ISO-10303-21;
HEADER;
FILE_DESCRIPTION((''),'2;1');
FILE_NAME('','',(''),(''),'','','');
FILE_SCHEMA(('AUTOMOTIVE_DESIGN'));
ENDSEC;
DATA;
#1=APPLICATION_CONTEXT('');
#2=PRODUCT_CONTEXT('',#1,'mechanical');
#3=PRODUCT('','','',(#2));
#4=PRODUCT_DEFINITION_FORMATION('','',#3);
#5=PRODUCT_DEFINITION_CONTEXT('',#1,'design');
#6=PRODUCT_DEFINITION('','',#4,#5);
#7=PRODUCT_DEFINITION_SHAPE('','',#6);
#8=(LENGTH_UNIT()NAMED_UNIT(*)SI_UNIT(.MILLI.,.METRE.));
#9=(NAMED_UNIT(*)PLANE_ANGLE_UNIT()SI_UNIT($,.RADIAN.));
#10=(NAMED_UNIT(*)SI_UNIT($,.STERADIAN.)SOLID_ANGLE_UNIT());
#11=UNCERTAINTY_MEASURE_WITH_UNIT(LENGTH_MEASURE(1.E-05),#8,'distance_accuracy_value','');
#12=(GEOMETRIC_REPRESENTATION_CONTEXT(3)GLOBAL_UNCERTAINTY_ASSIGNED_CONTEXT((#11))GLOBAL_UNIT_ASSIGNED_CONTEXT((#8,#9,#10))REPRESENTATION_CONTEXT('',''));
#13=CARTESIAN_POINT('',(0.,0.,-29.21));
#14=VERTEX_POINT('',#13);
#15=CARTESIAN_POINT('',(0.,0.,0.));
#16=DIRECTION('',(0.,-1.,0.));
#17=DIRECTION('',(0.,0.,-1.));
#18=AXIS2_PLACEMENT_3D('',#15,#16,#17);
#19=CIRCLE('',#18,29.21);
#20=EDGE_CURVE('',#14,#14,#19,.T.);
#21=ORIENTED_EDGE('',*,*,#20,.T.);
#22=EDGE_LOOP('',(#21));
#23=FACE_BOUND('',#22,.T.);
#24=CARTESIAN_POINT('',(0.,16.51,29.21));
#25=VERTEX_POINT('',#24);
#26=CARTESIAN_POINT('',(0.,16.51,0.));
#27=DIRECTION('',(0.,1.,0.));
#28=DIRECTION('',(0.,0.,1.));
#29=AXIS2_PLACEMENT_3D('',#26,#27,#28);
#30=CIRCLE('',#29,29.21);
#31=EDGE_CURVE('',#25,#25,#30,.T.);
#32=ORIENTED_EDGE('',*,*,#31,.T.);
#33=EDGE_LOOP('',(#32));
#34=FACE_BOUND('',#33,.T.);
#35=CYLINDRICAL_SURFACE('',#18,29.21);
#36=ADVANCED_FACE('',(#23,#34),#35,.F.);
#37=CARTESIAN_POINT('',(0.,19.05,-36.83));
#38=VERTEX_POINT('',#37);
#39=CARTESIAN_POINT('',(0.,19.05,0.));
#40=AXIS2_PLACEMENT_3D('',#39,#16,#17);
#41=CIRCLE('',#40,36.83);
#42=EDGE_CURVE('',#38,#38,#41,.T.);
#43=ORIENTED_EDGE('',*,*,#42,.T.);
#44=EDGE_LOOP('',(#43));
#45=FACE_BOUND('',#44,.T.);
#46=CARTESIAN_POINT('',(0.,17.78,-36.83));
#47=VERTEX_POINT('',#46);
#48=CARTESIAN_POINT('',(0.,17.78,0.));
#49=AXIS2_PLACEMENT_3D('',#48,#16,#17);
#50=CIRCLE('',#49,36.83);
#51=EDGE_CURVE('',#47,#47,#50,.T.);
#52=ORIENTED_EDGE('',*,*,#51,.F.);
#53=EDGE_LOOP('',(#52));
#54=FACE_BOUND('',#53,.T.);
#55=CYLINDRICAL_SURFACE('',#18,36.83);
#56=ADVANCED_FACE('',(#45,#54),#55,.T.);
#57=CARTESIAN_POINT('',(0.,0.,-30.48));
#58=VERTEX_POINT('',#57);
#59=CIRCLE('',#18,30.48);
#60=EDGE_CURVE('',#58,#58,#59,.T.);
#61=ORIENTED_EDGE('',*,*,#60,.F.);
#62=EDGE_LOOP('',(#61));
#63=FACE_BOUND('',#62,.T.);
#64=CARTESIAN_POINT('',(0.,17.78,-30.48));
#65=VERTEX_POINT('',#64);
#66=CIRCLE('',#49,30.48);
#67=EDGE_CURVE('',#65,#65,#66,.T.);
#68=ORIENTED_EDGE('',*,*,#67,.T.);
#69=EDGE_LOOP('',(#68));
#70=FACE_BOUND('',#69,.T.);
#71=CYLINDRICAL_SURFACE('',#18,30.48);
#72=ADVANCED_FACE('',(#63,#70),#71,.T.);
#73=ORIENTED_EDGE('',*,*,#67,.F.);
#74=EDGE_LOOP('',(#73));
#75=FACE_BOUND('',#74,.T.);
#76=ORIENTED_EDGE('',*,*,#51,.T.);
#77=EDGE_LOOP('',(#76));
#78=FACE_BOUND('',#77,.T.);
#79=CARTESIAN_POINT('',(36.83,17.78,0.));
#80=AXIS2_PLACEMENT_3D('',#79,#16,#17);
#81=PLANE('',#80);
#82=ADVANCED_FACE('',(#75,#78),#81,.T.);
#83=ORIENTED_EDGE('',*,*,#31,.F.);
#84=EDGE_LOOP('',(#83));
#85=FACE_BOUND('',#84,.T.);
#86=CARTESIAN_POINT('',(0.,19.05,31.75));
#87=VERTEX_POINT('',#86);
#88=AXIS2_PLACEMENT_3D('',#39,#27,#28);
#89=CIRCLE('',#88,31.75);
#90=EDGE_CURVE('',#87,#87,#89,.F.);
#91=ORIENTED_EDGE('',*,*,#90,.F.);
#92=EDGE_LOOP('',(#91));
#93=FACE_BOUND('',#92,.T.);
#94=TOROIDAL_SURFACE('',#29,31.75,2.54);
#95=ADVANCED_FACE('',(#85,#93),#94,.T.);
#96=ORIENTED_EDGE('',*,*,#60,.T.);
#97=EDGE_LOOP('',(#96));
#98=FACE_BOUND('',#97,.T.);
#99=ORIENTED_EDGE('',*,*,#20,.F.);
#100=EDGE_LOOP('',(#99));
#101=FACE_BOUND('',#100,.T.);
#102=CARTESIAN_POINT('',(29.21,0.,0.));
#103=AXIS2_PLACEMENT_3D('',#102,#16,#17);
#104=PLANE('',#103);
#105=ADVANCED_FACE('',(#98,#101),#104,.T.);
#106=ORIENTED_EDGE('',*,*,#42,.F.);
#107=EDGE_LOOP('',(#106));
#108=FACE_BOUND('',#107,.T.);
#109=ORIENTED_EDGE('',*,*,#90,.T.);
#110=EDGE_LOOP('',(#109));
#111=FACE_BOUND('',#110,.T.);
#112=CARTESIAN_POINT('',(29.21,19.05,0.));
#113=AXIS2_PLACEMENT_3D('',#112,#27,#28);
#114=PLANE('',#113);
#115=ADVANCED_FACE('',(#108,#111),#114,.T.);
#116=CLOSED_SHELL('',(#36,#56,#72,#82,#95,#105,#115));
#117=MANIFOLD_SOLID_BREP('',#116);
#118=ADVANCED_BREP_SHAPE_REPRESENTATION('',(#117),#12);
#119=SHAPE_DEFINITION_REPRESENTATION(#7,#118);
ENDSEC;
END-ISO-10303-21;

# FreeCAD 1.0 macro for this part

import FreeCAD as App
import Part
import Sketcher
from FreeCAD import Vector
Q = App.Units.Quantity


def edges_at(feature, points):
    """Names of the edges that pass closest to the given points."""
    edges = feature.Shape.Edges
    near = lambda p: min(range(len(edges)), key=lambda i: edges[i].distToShape(Part.Vertex(*p))[0])
    return sorted({f"Edge{near(p) + 1}" for p in points})

doc = App.newDocument("Part")
params = doc.addObject("Spreadsheet::Sheet", "Params")
for row, (alias, value) in enumerate([
    ("sketch1_width", "0.3 in"),
    ("sketch1_height", "0.7 in"),
    ("sketch1_width2", "0.05 in"),
    ("revolution_angle", "360 deg"),
    ("fillet_radius", "0.1 in"),
], start=1):
    params.set(f"A{row}", alias)
    params.set(f"B{row}", "=" + value)
    params.setAlias(f"B{row}", alias)

body = doc.addObject("PartDesign::Body", "Body")

sketch1 = body.newObject("Sketcher::SketchObject", "Sketch")
sketch1.AttachmentSupport = (doc.getObject("XY_Plane"), [""])
sketch1.MapMode = "FlatFace"
sketch1.addGeometry([
    Part.LineSegment(Vector(29.2, 19.1, 0), Vector(29.2, 0, 0)),
    Part.LineSegment(Vector(29.2, 0, 0), Vector(30.5, 0, 0)),
    Part.LineSegment(Vector(30.5, 0, 0), Vector(30.5, 17.8, 0)),
    Part.LineSegment(Vector(30.5, 17.8, 0), Vector(36.8, 17.8, 0)),
    Part.LineSegment(Vector(36.8, 17.8, 0), Vector(36.8, 19.1, 0)),
    Part.LineSegment(Vector(36.8, 19.1, 0), Vector(29.2, 19.1, 0)),
], False)
sketch1.addConstraint([
    Sketcher.Constraint("Coincident", 0, 2, 1, 1),
    Sketcher.Constraint("Coincident", 1, 2, 2, 1),
    Sketcher.Constraint("Coincident", 2, 2, 3, 1),
    Sketcher.Constraint("Coincident", 3, 2, 4, 1),
    Sketcher.Constraint("Coincident", 4, 2, 5, 1),
    Sketcher.Constraint("Coincident", 5, 2, 0, 1),
    Sketcher.Constraint("Vertical", 0),
    Sketcher.Constraint("Horizontal", 1),
    Sketcher.Constraint("Vertical", 2),
    Sketcher.Constraint("Horizontal", 3),
    Sketcher.Constraint("Vertical", 4),
    Sketcher.Constraint("Horizontal", 5),
    Sketcher.Constraint("PointOnObject", 0, 2, -1),
    Sketcher.Constraint("Equal", 1, 4),
    Sketcher.Constraint("DistanceX", 5, 2, 5, 1, Q("0.3 in")),
    Sketcher.Constraint("DistanceY", 2, 1, 2, 2, Q("0.7 in")),
    Sketcher.Constraint("DistanceX", 1, 1, 1, 2, Q("0.05 in")),
    Sketcher.Constraint("DistanceX", -1, 1, 1, 2, Q("1.2 in")),
])
sketch1.setExpression("Constraints[14]", "Params.sketch1_width")
sketch1.setExpression("Constraints[15]", "Params.sketch1_height")
sketch1.setExpression("Constraints[16]", "Params.sketch1_width2")
revolution = body.newObject("PartDesign::Revolution", "Revolution")
revolution.Profile = sketch1
revolution.ReferenceAxis = (sketch1, ["V_Axis"])
revolution.setExpression("Angle", "Params.revolution_angle")
doc.recompute()

fillet = body.newObject("PartDesign::Fillet", "Fillet")
fillet.Base = (revolution, edges_at(revolution, [(0, 19.05, 29.21)]))
fillet.setExpression("Radius", "Params.fillet_radius")

doc.recompute()
